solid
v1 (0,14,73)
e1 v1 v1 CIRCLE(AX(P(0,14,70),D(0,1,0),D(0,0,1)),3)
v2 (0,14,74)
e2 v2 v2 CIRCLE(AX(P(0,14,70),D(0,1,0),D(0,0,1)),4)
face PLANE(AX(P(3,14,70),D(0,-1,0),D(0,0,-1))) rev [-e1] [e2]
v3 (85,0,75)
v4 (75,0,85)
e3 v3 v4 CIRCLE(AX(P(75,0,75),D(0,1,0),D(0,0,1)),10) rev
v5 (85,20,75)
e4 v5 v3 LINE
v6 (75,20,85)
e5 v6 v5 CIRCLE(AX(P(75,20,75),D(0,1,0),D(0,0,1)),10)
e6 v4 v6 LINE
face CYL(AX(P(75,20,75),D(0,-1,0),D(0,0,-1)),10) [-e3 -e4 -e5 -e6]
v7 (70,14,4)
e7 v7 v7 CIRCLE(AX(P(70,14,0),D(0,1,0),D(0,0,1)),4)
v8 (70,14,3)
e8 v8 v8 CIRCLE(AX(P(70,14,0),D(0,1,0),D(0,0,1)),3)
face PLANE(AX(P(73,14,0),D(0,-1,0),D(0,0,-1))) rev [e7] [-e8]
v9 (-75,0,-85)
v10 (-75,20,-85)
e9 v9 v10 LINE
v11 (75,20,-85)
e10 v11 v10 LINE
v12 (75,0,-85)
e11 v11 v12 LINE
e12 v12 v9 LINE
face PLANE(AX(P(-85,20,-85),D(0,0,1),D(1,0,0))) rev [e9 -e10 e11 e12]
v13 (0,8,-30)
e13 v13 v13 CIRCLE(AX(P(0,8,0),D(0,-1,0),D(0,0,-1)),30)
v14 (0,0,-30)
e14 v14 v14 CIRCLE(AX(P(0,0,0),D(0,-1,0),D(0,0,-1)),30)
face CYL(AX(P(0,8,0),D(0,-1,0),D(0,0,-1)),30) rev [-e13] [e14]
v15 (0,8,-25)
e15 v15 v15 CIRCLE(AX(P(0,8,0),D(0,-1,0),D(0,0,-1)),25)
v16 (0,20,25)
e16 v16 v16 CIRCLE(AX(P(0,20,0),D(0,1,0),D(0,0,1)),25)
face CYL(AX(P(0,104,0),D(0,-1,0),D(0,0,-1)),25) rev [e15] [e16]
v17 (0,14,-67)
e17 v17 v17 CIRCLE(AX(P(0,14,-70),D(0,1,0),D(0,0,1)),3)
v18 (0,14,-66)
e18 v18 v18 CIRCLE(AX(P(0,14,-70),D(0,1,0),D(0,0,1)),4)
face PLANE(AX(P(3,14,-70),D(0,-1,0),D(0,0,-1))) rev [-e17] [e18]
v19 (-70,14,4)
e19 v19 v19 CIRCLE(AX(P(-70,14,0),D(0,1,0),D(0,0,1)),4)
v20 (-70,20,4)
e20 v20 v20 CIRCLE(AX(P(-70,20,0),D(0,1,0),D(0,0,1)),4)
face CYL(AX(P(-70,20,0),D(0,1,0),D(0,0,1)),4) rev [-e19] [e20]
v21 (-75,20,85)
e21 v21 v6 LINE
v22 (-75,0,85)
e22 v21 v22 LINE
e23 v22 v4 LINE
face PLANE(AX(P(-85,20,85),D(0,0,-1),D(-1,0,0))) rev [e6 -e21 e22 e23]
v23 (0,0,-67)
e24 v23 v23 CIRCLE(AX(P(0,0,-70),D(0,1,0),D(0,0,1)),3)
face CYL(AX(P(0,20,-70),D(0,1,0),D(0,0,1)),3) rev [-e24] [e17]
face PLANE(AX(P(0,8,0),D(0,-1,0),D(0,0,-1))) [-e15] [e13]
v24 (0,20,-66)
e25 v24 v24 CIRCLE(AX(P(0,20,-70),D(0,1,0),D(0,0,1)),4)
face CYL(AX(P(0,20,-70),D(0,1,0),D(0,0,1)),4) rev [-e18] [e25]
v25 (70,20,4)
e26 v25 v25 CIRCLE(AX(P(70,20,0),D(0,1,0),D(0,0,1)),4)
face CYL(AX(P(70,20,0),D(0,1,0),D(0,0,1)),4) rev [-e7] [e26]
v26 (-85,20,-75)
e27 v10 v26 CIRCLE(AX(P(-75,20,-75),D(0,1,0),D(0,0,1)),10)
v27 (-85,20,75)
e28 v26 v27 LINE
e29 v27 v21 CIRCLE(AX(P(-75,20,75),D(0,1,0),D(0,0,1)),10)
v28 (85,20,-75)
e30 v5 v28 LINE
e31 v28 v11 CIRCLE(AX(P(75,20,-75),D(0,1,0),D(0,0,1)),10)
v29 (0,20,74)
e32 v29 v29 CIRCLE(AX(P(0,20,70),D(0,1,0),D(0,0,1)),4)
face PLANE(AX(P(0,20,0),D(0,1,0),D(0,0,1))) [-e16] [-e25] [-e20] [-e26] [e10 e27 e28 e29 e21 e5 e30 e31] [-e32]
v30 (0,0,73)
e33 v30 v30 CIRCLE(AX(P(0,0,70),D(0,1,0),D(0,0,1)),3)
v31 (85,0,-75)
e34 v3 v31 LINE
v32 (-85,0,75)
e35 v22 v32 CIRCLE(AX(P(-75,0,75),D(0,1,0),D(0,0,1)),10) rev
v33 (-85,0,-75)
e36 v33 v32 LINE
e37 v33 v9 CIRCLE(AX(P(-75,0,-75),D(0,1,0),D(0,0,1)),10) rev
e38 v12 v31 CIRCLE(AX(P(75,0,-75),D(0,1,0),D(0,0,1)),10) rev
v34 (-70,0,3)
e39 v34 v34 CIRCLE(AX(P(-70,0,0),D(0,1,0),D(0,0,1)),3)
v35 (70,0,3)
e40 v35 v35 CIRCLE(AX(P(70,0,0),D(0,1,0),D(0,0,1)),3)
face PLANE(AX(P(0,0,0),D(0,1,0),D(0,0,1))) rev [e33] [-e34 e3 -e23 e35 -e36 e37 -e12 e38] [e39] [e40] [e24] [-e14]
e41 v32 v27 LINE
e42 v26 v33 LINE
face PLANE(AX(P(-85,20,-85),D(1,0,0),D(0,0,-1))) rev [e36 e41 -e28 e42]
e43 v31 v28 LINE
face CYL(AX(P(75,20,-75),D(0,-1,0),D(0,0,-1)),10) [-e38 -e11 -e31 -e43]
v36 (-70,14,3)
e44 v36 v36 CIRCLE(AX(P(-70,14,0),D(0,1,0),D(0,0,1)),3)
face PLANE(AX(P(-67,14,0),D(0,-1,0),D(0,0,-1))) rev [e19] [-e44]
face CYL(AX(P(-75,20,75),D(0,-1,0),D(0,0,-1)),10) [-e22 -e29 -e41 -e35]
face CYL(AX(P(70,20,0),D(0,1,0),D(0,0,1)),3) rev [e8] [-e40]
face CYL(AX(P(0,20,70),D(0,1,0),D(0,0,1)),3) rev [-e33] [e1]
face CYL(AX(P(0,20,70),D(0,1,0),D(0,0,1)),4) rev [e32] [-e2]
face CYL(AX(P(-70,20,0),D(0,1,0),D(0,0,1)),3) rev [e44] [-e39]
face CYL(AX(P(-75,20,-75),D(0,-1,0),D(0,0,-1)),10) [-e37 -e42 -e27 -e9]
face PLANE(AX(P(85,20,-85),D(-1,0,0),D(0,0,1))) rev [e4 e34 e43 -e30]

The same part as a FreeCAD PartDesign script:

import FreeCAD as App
import Part
import Sketcher
from FreeCAD import Vector


def edges_at(feature, points):
    """Names of the edges that pass closest to the given points."""
    edges = feature.Shape.Edges
    near = lambda p: min(range(len(edges)), key=lambda i: edges[i].distToShape(Part.Vertex(*p))[0])
    return sorted({f"Edge{near(p) + 1}" for p in points})

doc = App.newDocument("Part")
body = doc.addObject("PartDesign::Body", "Body")

# Sketch on XZ plane
sketch1 = doc.addObject("Sketcher::SketchObject", "Sketch")
body.addObject(sketch1)
sketch1.AttachmentSupport = (doc.XZ_Plane, [""])
sketch1.MapMode = "FlatFace"
sketch1.addGeometry([
    Part.LineSegment(Vector(-85, -85, 0), Vector(-85, 85, 0)),
    Part.LineSegment(Vector(-85, 85, 0), Vector(85, 85, 0)),
    Part.LineSegment(Vector(85, 85, 0), Vector(85, -85, 0)),
    Part.LineSegment(Vector(85, -85, 0), Vector(-85, -85, 0)),
], False)
sketch1.addConstraint([
    Sketcher.Constraint("Coincident", 0, 2, 1, 1),
    Sketcher.Constraint("Coincident", 1, 2, 2, 1),
    Sketcher.Constraint("Coincident", 2, 2, 3, 1),
    Sketcher.Constraint("Coincident", 3, 2, 0, 1),
    Sketcher.Constraint("Vertical", 0),
    Sketcher.Constraint("Horizontal", 1),
    Sketcher.Constraint("Vertical", 2),
    Sketcher.Constraint("Horizontal", 3),
    Sketcher.Constraint("Symmetric", 0, 2, 2, 2, -1, 1),
    Sketcher.Constraint("Equal", 3, 0),
    Sketcher.Constraint("DistanceX", 1, 1, 1, 2, 170.0),
])
pad1 = doc.addObject("PartDesign::Pad", "Pad")
body.addObject(pad1)
pad1.Profile = sketch1
pad1.Length = 20
pad1.Reversed = True
doc.recompute()

fillet = doc.addObject("PartDesign::Fillet", "Fillet")
body.addObject(fillet)
fillet.Base = (pad1, edges_at(pad1, [(85, 10, 85)]))
fillet.Radius = 10
doc.recompute()

fillet2 = doc.addObject("PartDesign::Fillet", "Fillet001")
body.addObject(fillet2)
fillet2.Base = (fillet, edges_at(fillet, [(85, 10, -85)]))
fillet2.Radius = 10
doc.recompute()

fillet3 = doc.addObject("PartDesign::Fillet", "Fillet002")
body.addObject(fillet3)
fillet3.Base = (fillet2, edges_at(fillet2, [(-85, 10, -85)]))
fillet3.Radius = 10
doc.recompute()

fillet4 = doc.addObject("PartDesign::Fillet", "Fillet003")
body.addObject(fillet4)
fillet4.Base = (fillet3, edges_at(fillet3, [(-85, 10, 85)]))
fillet4.Radius = 10

# Sketch on XZ plane
sketch2 = doc.addObject("Sketcher::SketchObject", "Sketch001")
body.addObject(sketch2)
sketch2.AttachmentSupport = (doc.XZ_Plane, [""])
sketch2.MapMode = "FlatFace"
sketch2.addGeometry(Part.Circle(Vector(0, 0, 0), Vector(0, 0, 1), 30), False)
sketch2.addConstraint([
    Sketcher.Constraint("Coincident", 0, 3, -1, 1),
    Sketcher.Constraint("Diameter", 0, 60.0),
])
pocket1 = doc.addObject("PartDesign::Pocket", "Pocket")
body.addObject(pocket1)
pocket1.Profile = sketch2
pocket1.Length = 8

# Sketch on XZ plane
sketch3 = doc.addObject("Sketcher::SketchObject", "Sketch002")
body.addObject(sketch3)
sketch3.AttachmentSupport = (doc.XZ_Plane, [""])
sketch3.MapMode = "FlatFace"
sketch3.AttachmentOffset = App.Placement(Vector(0, 0, -8), App.Rotation())
sketch3.addGeometry(Part.Circle(Vector(0, 0, 0), Vector(0, 0, 1), 25), False)
sketch3.addConstraint([
    Sketcher.Constraint("Coincident", 0, 3, -1, 1),
    Sketcher.Constraint("Diameter", 0, 50.0),
])
pocket2 = doc.addObject("PartDesign::Pocket", "Pocket001")
body.addObject(pocket2)
pocket2.Profile = sketch3
pocket2.Length = 96

# Sketch on XZ plane
sketch4 = doc.addObject("Sketcher::SketchObject", "Sketch003")
body.addObject(sketch4)
sketch4.AttachmentSupport = (doc.XZ_Plane, [""])
sketch4.MapMode = "FlatFace"
sketch4.AttachmentOffset = App.Placement(Vector(0, 0, -20), App.Rotation())
sketch4.addGeometry([
    Part.Circle(Vector(0, -70, 0), Vector(0, 0, 1), 3),
    Part.Circle(Vector(0, 70, 0), Vector(0, 0, 1), 3),
    Part.Circle(Vector(70, 0, 0), Vector(0, 0, 1), 3),
    Part.Circle(Vector(-70, 0, 0), Vector(0, 0, 1), 3),
], False)
sketch4.addConstraint([
    Sketcher.Constraint("Equal", 0, 1),
    Sketcher.Constraint("Equal", 1, 2),
    Sketcher.Constraint("Equal", 2, 3),
    Sketcher.Constraint("Symmetric", 0, 3, 1, 3, -1, 1),
    Sketcher.Constraint("Symmetric", 2, 3, 3, 3, -1, 1),
    Sketcher.Constraint("PointOnObject", 0, 3, -2),
    Sketcher.Constraint("PointOnObject", 2, 3, -1),
    Sketcher.Constraint("Diameter", 0, 6.0),
    Sketcher.Constraint("DistanceY", 0, 3, -1, 1, 70.0),
    Sketcher.Constraint("DistanceX", -1, 1, 2, 3, 70.0),
])
doc.recompute()
hole = doc.addObject("PartDesign::Hole", "Hole")
body.addObject(hole)
hole.Profile = sketch4
hole.ThreadType = "None"
hole.Diameter = 6
hole.DepthType = "ThroughAll"
hole.HoleCutType = "Counterbore"
hole.HoleCutDiameter = 8
hole.HoleCutDepth = 6
hole.Reversed = True

doc.recompute()
